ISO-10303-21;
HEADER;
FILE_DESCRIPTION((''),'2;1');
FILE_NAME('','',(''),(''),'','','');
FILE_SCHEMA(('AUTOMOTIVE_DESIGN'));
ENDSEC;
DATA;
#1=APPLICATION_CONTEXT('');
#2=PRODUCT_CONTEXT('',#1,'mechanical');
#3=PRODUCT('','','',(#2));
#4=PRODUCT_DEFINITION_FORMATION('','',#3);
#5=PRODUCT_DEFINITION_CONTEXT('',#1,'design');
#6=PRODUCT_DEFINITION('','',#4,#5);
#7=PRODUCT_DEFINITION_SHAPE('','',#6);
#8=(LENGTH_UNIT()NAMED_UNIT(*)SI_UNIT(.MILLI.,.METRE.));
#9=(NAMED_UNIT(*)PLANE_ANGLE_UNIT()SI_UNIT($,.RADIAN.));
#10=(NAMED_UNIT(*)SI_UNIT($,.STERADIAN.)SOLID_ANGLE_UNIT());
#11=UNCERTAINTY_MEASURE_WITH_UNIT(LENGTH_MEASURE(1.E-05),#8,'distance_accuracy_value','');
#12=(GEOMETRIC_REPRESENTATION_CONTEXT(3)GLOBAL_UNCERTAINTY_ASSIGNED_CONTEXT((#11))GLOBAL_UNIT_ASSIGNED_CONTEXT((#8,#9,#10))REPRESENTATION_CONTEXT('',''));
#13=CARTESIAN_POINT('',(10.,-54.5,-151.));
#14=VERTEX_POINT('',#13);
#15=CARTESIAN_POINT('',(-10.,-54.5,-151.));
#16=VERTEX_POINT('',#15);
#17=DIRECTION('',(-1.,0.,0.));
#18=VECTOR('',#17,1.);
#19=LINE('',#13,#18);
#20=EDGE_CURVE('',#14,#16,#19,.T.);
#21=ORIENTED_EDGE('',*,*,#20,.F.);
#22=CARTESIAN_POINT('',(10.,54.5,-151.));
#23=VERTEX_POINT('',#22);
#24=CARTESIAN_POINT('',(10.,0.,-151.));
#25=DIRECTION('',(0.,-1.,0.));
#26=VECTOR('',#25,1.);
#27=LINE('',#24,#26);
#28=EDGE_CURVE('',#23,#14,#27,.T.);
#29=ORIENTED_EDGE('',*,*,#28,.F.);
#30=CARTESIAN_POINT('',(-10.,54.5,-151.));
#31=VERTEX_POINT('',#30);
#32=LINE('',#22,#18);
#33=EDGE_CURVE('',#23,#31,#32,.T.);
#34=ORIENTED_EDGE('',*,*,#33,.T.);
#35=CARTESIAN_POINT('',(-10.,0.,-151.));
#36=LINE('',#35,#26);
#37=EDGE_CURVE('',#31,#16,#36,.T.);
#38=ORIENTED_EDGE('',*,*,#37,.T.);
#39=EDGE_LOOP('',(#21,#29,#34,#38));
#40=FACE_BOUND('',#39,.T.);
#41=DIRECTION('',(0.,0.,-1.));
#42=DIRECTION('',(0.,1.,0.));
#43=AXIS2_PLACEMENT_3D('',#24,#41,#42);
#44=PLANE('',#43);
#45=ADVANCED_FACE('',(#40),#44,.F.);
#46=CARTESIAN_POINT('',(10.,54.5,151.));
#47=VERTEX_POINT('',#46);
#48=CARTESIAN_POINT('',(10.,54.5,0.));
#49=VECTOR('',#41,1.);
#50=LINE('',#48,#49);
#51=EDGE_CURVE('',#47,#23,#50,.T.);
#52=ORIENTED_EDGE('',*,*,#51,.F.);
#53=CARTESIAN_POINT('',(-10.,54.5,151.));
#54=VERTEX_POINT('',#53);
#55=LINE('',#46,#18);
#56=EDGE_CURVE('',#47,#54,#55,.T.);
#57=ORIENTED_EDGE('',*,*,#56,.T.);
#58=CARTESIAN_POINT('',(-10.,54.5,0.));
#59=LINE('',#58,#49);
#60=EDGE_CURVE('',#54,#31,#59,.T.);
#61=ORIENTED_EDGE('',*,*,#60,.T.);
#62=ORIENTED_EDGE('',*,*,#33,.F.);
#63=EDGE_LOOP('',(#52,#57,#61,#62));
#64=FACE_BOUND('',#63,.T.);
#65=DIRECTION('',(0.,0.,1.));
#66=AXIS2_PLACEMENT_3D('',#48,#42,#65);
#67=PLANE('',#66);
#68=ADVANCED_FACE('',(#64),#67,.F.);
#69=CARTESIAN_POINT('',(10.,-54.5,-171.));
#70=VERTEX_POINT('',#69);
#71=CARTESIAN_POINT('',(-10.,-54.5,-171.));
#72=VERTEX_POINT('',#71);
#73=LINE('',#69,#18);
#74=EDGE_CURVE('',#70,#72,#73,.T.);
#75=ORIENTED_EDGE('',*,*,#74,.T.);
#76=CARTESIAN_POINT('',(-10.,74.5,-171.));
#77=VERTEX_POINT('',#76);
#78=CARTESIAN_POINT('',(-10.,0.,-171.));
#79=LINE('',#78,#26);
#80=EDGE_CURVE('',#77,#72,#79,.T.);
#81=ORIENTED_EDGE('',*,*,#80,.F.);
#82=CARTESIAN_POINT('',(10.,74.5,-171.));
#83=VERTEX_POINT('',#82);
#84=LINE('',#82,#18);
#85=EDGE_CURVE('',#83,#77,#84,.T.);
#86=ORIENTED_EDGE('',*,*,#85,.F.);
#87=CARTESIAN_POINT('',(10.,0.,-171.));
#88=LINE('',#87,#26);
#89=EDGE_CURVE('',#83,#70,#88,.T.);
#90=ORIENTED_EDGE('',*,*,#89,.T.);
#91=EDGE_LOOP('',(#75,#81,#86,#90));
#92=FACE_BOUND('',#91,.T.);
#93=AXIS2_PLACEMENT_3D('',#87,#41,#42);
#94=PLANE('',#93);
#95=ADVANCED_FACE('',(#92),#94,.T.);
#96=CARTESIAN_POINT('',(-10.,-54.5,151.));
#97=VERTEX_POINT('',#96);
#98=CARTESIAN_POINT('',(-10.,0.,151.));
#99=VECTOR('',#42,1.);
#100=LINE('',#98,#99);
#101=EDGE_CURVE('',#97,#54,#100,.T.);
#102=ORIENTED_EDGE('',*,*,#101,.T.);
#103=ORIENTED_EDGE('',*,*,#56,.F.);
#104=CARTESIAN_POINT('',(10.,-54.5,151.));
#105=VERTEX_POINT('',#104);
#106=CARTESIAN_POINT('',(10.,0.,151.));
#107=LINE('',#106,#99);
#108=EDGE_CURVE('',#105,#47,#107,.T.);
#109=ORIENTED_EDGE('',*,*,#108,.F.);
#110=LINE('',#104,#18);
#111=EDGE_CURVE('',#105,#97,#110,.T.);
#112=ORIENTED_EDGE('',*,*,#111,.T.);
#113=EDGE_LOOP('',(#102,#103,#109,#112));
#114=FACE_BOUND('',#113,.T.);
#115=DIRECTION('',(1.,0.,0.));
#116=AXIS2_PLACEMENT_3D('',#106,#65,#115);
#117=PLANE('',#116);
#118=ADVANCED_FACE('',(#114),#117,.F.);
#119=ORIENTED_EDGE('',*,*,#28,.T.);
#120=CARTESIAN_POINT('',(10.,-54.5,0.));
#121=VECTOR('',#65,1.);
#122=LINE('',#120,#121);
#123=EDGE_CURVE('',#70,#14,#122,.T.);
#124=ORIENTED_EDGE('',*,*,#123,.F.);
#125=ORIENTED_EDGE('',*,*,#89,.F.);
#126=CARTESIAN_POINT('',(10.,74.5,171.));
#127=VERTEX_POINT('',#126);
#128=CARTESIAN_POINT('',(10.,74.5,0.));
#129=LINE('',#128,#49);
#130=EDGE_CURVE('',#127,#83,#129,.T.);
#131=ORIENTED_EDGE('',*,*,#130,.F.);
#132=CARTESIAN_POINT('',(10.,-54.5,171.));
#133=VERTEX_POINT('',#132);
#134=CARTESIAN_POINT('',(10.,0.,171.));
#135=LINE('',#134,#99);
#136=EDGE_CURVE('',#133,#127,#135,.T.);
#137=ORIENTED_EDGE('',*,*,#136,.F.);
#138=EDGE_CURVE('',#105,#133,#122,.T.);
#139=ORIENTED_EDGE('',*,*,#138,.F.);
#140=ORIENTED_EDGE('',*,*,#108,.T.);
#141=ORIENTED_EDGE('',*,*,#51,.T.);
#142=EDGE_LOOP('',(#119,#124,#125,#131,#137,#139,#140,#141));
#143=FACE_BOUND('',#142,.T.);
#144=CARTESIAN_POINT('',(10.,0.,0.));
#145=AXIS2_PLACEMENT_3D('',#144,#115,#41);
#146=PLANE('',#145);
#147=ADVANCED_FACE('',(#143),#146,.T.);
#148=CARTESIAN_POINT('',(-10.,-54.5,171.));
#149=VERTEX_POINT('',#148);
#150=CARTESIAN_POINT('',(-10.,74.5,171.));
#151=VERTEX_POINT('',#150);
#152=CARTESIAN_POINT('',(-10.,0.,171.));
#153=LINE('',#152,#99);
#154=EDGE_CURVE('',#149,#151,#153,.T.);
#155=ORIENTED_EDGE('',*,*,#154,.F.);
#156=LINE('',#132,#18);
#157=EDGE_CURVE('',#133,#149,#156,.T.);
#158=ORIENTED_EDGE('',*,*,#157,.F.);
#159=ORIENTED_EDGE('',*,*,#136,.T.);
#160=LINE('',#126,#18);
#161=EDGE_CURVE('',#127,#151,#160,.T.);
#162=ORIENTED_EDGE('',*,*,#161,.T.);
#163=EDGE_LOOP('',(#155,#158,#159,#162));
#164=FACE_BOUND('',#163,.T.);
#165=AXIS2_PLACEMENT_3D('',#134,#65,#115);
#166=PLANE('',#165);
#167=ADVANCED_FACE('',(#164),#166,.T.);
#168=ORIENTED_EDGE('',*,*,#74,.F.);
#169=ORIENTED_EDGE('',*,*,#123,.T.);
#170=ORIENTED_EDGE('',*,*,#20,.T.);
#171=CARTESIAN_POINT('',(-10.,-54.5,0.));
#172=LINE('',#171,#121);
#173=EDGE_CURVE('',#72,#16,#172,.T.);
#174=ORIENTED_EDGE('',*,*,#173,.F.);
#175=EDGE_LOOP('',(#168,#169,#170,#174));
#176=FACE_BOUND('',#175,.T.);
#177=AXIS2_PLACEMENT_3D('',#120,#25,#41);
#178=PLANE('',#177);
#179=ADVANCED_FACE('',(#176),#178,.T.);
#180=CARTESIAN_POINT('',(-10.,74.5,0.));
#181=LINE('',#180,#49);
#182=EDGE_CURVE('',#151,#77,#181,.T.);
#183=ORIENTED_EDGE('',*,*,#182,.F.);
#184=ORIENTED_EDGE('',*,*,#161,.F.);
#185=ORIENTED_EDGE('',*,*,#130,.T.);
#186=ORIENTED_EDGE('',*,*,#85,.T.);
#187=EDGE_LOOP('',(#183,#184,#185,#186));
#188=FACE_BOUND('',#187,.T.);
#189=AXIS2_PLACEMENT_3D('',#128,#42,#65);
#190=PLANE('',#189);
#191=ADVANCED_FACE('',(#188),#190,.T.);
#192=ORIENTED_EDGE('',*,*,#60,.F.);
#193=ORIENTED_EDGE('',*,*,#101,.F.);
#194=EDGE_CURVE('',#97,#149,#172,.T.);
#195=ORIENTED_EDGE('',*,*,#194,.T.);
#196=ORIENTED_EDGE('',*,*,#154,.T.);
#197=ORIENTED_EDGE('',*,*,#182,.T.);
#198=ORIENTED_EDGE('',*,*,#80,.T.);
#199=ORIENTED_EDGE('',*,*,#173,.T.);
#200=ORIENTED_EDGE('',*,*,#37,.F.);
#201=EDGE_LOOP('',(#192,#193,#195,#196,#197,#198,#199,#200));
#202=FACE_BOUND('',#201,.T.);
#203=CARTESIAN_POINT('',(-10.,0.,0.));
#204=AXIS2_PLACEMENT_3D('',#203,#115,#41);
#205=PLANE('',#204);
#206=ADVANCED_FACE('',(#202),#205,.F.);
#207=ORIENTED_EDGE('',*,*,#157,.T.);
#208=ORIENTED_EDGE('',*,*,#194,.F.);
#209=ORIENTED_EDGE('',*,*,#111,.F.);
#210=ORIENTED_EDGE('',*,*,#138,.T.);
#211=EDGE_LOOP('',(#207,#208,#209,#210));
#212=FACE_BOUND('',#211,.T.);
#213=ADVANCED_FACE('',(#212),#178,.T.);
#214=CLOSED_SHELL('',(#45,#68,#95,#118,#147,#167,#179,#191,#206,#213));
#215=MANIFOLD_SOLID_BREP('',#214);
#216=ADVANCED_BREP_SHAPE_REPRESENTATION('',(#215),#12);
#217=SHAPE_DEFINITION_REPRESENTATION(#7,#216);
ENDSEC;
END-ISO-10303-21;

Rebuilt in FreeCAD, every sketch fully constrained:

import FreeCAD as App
import Part
import Sketcher

V = App.Vector


def add_polygon(sketch, points):
    """Adds a closed chain of lines whose ends are joined by coincident constraints."""
    first, n = sketch.GeometryCount, len(points)
    for a, b in zip(points, points[1:] + points[:1]):
        sketch.addGeometry(Part.LineSegment(App.Vector(*a, 0), App.Vector(*b, 0)), False)
    for i in range(n):
        sketch.addConstraint(Sketcher.Constraint("Coincident", first + i, 2, first + (i + 1) % n, 1))

doc = App.newDocument("Part")
body = doc.addObject("PartDesign::Body", "Body")

sketch1 = body.newObject("Sketcher::SketchObject", "Sketch")
sketch1.AttachmentSupport = (doc.getObject("YZ_Plane"), [""])
sketch1.MapMode = "FlatFace"
add_polygon(sketch1, [(-54.5, 171), (-54.5, 151), (54.5, 151), (54.5, -151), (-54.5, -151), (-54.5, -171), (74.5, -171), (74.5, 171)])
sketch1.addConstraint([
    Sketcher.Constraint("Vertical", 0),
    Sketcher.Constraint("Horizontal", 1),
    Sketcher.Constraint("Vertical", 2),
    Sketcher.Constraint("Horizontal", 3),
    Sketcher.Constraint("Vertical", 4),
    Sketcher.Constraint("Horizontal", 5),
    Sketcher.Constraint("Vertical", 6),
    Sketcher.Constraint("Horizontal", 7),
    Sketcher.Constraint("Symmetric", 0, 2, 2, 2, -1, 1),
    Sketcher.Constraint("Symmetric", 4, 2, 7, 2, -1),
    Sketcher.Constraint("DistanceX", 1, 1, 1, 2, 109.0),
    Sketcher.Constraint("DistanceX", 5, 1, 5, 2, 129.0),
    Sketcher.Constraint("DistanceY", 0, 2, 0, 1, 20.0),
    Sketcher.Constraint("DistanceY", 2, 2, 2, 1, 302.0),
])
pad1 = body.newObject("PartDesign::Pad", "Pad")
pad1.Profile = sketch1
pad1.Length = 20
pad1.Midplane = True

doc.recompute()
